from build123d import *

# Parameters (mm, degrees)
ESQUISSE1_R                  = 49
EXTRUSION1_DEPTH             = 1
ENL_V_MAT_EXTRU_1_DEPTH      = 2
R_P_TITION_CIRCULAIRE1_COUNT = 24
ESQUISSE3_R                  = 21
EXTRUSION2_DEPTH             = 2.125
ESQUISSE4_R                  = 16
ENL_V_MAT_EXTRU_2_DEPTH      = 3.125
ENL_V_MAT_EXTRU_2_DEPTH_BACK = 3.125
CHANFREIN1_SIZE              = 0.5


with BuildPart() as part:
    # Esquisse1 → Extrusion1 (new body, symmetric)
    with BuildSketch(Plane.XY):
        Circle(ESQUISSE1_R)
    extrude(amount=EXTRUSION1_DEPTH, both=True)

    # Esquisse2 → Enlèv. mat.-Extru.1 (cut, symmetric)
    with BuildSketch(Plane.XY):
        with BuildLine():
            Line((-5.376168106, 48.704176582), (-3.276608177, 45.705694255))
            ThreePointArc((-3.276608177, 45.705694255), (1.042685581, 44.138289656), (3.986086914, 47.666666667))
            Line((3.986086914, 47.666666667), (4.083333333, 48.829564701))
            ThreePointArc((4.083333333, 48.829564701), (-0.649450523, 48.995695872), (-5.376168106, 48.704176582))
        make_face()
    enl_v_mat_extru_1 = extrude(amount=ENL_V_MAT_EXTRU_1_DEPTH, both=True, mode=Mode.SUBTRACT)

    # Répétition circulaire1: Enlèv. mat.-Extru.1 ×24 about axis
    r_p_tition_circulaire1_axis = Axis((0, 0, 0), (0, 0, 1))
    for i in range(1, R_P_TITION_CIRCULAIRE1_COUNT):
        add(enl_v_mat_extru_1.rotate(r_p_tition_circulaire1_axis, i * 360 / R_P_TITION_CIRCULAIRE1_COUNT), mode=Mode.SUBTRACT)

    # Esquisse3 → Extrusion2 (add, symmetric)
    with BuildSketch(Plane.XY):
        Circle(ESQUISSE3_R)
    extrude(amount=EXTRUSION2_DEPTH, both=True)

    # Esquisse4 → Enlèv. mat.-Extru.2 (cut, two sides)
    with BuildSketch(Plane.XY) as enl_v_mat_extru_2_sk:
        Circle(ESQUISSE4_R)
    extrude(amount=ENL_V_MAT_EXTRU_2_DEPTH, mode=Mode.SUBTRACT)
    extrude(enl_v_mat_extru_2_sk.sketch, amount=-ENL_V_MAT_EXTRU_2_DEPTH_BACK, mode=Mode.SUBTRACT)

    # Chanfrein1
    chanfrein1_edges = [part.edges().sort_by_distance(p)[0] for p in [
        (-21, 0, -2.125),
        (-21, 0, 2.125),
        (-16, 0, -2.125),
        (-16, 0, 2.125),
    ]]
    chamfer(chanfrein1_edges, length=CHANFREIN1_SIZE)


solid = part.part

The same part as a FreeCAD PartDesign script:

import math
import FreeCAD as App
import Part
import Sketcher
from FreeCAD import Vector
Q = App.Units.Quantity


def edges_at(feature, points):
    """Names of the edges that pass closest to the given points."""
    edges = feature.Shape.Edges
    near = lambda p: min(range(len(edges)), key=lambda i: edges[i].distToShape(Part.Vertex(*p))[0])
    return sorted({f"Edge{near(p) + 1}" for p in points})

doc = App.newDocument("Part")
body = doc.addObject("PartDesign::Body", "Body")

# Sketch on XY plane
sketch1 = body.newObject("Sketcher::SketchObject", "Sketch")
sketch1.AttachmentSupport = (doc.getObject("XY_Plane"), [""])
sketch1.MapMode = "FlatFace"
sketch1.addGeometry(Part.Circle(Vector(0, 0, 0), Vector(0, 0, 1), 49), False)
sketch1.addConstraint(Sketcher.Constraint("Coincident", 0, 3, -1, 1))
sketch1.addConstraint(Sketcher.Constraint("Diameter", 0, Q("98 mm")))
pad1 = body.newObject("PartDesign::Pad", "Pad")
pad1.Profile = sketch1
pad1.Length = 2
pad1.Midplane = True

# Sketch on XY plane
sketch2 = body.newObject("Sketcher::SketchObject", "Sketch001")
sketch2.AttachmentSupport = (doc.getObject("XY_Plane"), [""])
sketch2.MapMode = "FlatFace"
sketch2.addGeometry(Part.LineSegment(Vector(-5.4, 48.7, 0), Vector(-3.3, 45.7, 0)), False)
sketch2.addGeometry(Part.ArcOfCircle(Part.Circle(Vector(0, 48, 0), Vector(0, 0, 1), 4), math.radians(-145), math.radians(-5)), False)
sketch2.addGeometry(Part.LineSegment(Vector(4, 47.7, 0), Vector(4.1, 48.8, 0)), False)
sketch2.addGeometry(Part.ArcOfCircle(Part.Circle(Vector(0, 0, 0), Vector(0, 0, 1), 49), math.radians(85.22), math.radians(96.3)), False)
sketch2.addConstraint(Sketcher.Constraint("Tangent", 0, 2, 1, 1))
sketch2.addConstraint(Sketcher.Constraint("Tangent", 1, 2, 2, 1))
sketch2.addConstraint(Sketcher.Constraint("Coincident", 2, 2, 3, 1))
sketch2.addConstraint(Sketcher.Constraint("Coincident", 3, 2, 0, 1))
sketch2.addConstraint(Sketcher.Constraint("Coincident", 3, 3, -1, 1))
sketch2.addConstraint(Sketcher.Constraint("PointOnObject", 1, 3, -2))
sketch2.addConstraint(Sketcher.Constraint("Radius", 1, Q("4 mm")))
sketch2.addConstraint(Sketcher.Constraint("Radius", 3, Q("49 mm")))
sketch2.addConstraint(Sketcher.Constraint("Angle", 0, Q("-55 deg")))
sketch2.addConstraint(Sketcher.Constraint("DistanceY", -1, 1, 1, 3, Q("48 mm")))
sketch2.addConstraint(Sketcher.Constraint("DistanceY", 1, 2, 2, 2, Q("1.162898 mm")))
pocket1 = body.newObject("PartDesign::Pocket", "Pocket")
pocket1.Profile = sketch2
pocket1.Length = 4
pocket1.Midplane = True
doc.recompute()

polarpattern = body.newObject("PartDesign::PolarPattern", "PolarPattern")
polarpattern.Originals = [pocket1]
polarpattern.Axis = (doc.getObject("Z_Axis"), [""])
polarpattern.Angle = 360
polarpattern.Occurrences = 24
body.Tip = polarpattern

# Sketch on XY plane
sketch3 = body.newObject("Sketcher::SketchObject", "Sketch002")
sketch3.AttachmentSupport = (doc.getObject("XY_Plane"), [""])
sketch3.MapMode = "FlatFace"
sketch3.addGeometry(Part.Circle(Vector(0, 0, 0), Vector(0, 0, 1), 21), False)
sketch3.addConstraint(Sketcher.Constraint("Coincident", 0, 3, -1, 1))
sketch3.addConstraint(Sketcher.Constraint("Diameter", 0, Q("42 mm")))
pad2 = body.newObject("PartDesign::Pad", "Pad001")
pad2.Profile = sketch3
pad2.Length = 4.25
pad2.Midplane = True

# Sketch on XY plane
sketch4 = body.newObject("Sketcher::SketchObject", "Sketch003")
sketch4.AttachmentSupport = (doc.getObject("XY_Plane"), [""])
sketch4.MapMode = "FlatFace"
sketch4.addGeometry(Part.Circle(Vector(0, 0, 0), Vector(0, 0, 1), 16), False)
sketch4.addConstraint(Sketcher.Constraint("Coincident", 0, 3, -1, 1))
sketch4.addConstraint(Sketcher.Constraint("Diameter", 0, Q("32 mm")))
pocket2 = body.newObject("PartDesign::Pocket", "Pocket001")
pocket2.Profile = sketch4
pocket2.Type = "ThroughAll"
pocket2.Midplane = True
doc.recompute()

chamfer = body.newObject("PartDesign::Chamfer", "Chamfer")
chamfer.Base = (pocket2, edges_at(pocket2, [
    (-21, 0, -2.125),
    (-21, 0, 2.125),
    (-16, 0, -2.125),
    (-16, 0, 2.125),
]))
chamfer.Size = 0.5

doc.recompute()
